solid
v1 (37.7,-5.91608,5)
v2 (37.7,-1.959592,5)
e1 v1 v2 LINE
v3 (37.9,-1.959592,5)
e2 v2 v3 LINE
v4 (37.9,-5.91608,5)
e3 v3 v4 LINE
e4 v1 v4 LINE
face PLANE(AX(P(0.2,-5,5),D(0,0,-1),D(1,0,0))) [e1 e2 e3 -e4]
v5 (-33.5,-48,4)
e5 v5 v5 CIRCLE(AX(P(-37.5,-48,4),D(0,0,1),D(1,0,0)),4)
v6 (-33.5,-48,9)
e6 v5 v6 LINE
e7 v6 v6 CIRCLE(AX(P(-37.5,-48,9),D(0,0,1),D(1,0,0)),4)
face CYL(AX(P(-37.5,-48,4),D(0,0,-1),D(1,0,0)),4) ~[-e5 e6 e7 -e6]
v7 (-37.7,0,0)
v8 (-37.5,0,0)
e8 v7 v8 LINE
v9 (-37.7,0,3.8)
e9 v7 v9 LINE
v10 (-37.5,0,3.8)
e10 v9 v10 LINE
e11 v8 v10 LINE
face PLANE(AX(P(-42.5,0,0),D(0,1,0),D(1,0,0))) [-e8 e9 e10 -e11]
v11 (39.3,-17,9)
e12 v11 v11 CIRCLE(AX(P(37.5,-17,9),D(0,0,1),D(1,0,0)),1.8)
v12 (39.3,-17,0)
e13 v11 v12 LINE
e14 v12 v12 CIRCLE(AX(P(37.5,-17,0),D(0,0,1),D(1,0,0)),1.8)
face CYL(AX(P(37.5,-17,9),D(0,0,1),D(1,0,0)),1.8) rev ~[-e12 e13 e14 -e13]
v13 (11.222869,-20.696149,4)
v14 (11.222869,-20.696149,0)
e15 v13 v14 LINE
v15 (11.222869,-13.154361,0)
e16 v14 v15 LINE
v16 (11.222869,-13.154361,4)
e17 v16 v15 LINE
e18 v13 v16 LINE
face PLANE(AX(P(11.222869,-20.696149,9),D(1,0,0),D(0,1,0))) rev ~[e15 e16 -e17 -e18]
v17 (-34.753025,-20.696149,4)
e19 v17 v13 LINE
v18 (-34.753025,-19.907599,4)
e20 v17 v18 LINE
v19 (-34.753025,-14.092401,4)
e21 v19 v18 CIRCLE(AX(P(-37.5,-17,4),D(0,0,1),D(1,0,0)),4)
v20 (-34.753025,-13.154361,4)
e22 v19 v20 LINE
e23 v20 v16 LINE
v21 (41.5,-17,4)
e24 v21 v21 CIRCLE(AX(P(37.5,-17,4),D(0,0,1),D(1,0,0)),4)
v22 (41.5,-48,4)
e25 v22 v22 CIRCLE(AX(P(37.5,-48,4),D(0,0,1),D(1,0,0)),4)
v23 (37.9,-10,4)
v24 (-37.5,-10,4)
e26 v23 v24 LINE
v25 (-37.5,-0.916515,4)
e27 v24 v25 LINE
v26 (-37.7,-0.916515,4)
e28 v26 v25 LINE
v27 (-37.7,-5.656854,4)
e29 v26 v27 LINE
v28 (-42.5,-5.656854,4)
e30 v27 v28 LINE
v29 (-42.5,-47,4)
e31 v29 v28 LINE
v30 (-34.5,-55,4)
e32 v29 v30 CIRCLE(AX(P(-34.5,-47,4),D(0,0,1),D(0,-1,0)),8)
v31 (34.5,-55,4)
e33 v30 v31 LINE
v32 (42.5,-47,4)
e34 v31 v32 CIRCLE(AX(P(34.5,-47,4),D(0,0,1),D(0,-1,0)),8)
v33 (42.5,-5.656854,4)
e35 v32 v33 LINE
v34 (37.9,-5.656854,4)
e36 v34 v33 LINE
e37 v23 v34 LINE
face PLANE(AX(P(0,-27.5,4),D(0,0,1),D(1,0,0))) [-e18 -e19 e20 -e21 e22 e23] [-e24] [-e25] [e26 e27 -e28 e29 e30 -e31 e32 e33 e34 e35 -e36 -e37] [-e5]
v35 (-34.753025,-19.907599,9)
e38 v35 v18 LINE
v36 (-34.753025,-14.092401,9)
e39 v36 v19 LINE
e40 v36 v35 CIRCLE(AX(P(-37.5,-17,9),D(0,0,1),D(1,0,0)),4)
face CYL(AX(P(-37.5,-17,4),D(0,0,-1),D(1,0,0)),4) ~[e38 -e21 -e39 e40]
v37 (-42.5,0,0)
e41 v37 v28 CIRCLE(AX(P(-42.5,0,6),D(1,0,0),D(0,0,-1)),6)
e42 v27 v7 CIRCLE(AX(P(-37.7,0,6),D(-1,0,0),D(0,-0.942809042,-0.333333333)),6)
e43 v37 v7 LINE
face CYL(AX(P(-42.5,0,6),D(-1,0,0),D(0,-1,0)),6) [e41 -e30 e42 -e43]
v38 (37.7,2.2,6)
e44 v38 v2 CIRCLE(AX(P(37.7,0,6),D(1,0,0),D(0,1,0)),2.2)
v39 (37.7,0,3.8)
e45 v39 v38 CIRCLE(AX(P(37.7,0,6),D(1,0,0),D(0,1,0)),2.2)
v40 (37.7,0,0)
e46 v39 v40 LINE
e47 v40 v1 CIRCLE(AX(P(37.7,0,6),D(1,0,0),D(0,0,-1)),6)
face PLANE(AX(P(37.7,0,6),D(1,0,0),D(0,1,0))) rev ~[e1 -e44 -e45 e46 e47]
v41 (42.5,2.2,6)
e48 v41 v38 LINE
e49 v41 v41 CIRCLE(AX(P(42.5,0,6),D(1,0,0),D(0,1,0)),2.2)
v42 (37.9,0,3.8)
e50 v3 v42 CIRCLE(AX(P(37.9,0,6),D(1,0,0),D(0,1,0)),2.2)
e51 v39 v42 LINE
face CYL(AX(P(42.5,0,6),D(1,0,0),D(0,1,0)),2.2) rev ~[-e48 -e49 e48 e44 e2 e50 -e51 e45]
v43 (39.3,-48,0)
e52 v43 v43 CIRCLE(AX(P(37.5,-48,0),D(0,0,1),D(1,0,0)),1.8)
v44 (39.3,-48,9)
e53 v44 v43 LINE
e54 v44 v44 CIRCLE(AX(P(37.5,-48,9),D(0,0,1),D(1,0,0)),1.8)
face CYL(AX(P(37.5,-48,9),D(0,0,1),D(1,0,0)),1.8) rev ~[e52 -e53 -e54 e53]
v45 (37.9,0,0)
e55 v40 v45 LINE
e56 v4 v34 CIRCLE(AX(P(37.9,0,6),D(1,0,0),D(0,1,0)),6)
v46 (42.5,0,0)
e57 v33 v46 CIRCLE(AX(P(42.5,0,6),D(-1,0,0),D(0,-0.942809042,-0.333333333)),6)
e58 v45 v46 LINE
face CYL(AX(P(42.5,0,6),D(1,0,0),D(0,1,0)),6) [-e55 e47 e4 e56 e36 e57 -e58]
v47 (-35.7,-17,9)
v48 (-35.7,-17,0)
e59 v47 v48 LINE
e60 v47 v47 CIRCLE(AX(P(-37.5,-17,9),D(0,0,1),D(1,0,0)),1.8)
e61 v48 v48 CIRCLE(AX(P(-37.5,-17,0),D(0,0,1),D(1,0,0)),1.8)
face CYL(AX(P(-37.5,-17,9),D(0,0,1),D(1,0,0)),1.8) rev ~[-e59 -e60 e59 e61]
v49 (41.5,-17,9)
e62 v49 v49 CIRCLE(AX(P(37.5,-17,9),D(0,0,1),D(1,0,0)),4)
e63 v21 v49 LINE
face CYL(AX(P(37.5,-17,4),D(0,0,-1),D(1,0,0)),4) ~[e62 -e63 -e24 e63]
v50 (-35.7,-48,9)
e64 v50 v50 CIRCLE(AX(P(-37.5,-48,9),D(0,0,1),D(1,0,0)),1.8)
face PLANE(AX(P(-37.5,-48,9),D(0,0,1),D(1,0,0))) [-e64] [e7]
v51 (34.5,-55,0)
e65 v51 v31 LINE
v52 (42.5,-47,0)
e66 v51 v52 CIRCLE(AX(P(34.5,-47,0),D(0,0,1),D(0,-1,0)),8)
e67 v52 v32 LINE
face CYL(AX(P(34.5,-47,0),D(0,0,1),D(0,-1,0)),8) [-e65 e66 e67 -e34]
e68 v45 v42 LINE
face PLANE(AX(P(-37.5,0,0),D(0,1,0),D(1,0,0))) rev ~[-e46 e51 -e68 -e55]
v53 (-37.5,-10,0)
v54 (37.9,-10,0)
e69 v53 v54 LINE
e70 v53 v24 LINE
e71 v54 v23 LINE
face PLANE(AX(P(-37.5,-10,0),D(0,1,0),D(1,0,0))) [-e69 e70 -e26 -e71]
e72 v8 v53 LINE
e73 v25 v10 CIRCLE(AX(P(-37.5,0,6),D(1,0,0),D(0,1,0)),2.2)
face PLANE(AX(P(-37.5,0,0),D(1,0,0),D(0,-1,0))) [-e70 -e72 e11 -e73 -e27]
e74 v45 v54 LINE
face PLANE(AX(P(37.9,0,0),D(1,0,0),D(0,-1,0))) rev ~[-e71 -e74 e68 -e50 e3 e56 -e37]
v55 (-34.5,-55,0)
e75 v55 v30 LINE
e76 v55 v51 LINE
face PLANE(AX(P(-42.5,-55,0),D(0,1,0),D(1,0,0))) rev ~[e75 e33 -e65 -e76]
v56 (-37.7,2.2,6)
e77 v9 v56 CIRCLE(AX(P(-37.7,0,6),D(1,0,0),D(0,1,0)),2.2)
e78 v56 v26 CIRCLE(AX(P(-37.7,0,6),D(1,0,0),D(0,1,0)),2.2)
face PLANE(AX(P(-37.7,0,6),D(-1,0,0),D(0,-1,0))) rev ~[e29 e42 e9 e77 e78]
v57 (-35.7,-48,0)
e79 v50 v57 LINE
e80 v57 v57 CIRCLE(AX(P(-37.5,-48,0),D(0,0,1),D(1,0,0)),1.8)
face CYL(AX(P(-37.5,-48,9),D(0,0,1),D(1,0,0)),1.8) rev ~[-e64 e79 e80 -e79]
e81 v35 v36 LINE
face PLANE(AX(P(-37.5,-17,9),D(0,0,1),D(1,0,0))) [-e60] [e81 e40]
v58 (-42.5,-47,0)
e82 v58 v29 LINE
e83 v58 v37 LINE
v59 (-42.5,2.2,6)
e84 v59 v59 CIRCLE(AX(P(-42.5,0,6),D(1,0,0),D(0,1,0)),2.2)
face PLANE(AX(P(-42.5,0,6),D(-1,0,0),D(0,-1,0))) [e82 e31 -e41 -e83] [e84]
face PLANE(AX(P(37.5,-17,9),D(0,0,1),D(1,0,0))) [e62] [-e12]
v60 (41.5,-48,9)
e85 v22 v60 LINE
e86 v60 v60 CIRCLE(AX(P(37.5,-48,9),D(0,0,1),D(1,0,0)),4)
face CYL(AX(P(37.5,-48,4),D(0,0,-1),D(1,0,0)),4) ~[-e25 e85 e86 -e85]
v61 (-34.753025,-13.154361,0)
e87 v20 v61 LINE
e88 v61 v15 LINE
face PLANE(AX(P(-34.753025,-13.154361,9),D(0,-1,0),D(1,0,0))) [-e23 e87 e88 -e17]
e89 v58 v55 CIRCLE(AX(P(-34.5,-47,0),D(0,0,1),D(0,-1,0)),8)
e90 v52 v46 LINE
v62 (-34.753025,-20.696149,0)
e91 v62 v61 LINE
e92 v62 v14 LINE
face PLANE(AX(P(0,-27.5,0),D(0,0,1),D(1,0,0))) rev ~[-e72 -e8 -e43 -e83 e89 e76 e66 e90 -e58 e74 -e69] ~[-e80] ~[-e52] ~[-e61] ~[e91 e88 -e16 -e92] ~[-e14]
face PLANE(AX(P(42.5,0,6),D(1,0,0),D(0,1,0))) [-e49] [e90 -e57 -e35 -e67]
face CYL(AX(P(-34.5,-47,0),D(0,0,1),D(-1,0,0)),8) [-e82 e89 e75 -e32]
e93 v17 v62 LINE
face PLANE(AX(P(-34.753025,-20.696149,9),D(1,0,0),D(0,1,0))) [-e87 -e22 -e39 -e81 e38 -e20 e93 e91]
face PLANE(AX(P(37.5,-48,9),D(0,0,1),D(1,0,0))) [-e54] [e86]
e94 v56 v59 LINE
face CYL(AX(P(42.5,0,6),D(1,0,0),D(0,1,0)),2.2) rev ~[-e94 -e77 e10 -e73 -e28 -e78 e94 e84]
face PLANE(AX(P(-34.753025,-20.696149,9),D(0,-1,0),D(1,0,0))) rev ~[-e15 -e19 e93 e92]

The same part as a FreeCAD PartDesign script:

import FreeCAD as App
import Part
import Sketcher
Q = App.Units.Quantity


def edges_at(feature, points):
    """Names of the edges that pass closest to the given points."""
    edges = feature.Shape.Edges
    near = lambda p: min(range(len(edges)), key=lambda i: edges[i].distToShape(Part.Vertex(*p))[0])
    return sorted({f"Edge{near(p) + 1}" for p in points})


def add_polygon(sketch, points):
    """Adds a closed chain of lines whose ends are joined by coincident constraints."""
    first, n = sketch.GeometryCount, len(points)
    for a, b in zip(points, points[1:] + points[:1]):
        sketch.addGeometry(Part.LineSegment(App.Vector(*a, 0), App.Vector(*b, 0)), False)
    for i in range(n):
        sketch.addConstraint(Sketcher.Constraint("Coincident", first + i, 2, first + (i + 1) % n, 1))

doc = App.newDocument("Part")
body = doc.addObject("PartDesign::Body", "Body")

sketch1 = body.newObject("Sketcher::SketchObject", "Sketch")
sketch1.AttachmentSupport = (doc.getObject("XY_Plane"), [""])
sketch1.MapMode = "FlatFace"
add_polygon(sketch1, [(-42, 0), (-42, -55), (42, -55), (42, 0)])
sketch1.addConstraint([
    Sketcher.Constraint("Vertical", 0),
    Sketcher.Constraint("Horizontal", 1),
    Sketcher.Constraint("Vertical", 2),
    Sketcher.Constraint("Horizontal", 3),
    Sketcher.Constraint("Symmetric", 2, 2, 3, 2, -1, 1),
    Sketcher.Constraint("DistanceX", 1, 1, 1, 2, Q("85 mm")),
    Sketcher.Constraint("DistanceY", 0, 2, 0, 1, Q("55 mm")),
])
pad1 = body.newObject("PartDesign::Pad", "Pad")
pad1.Profile = sketch1
pad1.Length = 4

sketch2 = body.newObject("Sketcher::SketchObject", "Sketch001")
sketch2.AttachmentSupport = (doc.getObject("YZ_Plane"), [""])
sketch2.MapMode = "FlatFace"
sketch2.AttachmentOffset = App.Placement(App.Vector(0, 0, 42.5), App.Rotation())
sketch2.addGeometry(Part.Circle(App.Vector(0, 6, 0), App.Vector(0, 0, 1), 6), False)
sketch2.addConstraint([
    Sketcher.Constraint("PointOnObject", 0, 3, -2),
    Sketcher.Constraint("Diameter", 0, Q("12 mm")),
    Sketcher.Constraint("DistanceY", -1, 1, 0, 3, Q("6 mm")),
])
pad2 = body.newObject("PartDesign::Pad", "Pad001")
pad2.Profile = sketch2
pad2.Length = 4.8
pad2.Reversed = True

sketch3 = body.newObject("Sketcher::SketchObject", "Sketch002")
sketch3.AttachmentSupport = (doc.getObject("YZ_Plane"), [""])
sketch3.MapMode = "FlatFace"
sketch3.AttachmentOffset = App.Placement(App.Vector(0, 0, -42.5), App.Rotation())
sketch3.addGeometry(Part.Circle(App.Vector(0, 6, 0), App.Vector(0, 0, 1), 6), False)
sketch3.addConstraint([
    Sketcher.Constraint("PointOnObject", 0, 3, -2),
    Sketcher.Constraint("Diameter", 0, Q("12 mm")),
    Sketcher.Constraint("DistanceY", -1, 1, 0, 3, Q("6 mm")),
])
pad3 = body.newObject("PartDesign::Pad", "Pad002")
pad3.Profile = sketch3
pad3.Length = 4.8

sketch4 = body.newObject("Sketcher::SketchObject", "Sketch003")
sketch4.AttachmentSupport = (doc.getObject("XY_Plane"), [""])
sketch4.MapMode = "FlatFace"
add_polygon(sketch4, [(-38, -10), (-38, 0), (38, 0), (38, -10)])
sketch4.addConstraint([
    Sketcher.Constraint("Vertical", 0),
    Sketcher.Constraint("Horizontal", 1),
    Sketcher.Constraint("Vertical", 2),
    Sketcher.Constraint("Horizontal", 3),
    Sketcher.Constraint("PointOnObject", 0, 2, -1),
    Sketcher.Constraint("DistanceY", 0, 1, 0, 2, Q("10 mm")),
    Sketcher.Constraint("DistanceX", 1, 1, 1, 2, Q("75.4 mm")),
    Sketcher.Constraint("DistanceX", 0, 2, -1, 1, Q("37.5 mm")),
])
pocket1 = body.newObject("PartDesign::Pocket", "Pocket")
pocket1.Profile = sketch4
pocket1.Length = 5
pocket1.Reversed = True

sketch5 = body.newObject("Sketcher::SketchObject", "Sketch004")
sketch5.AttachmentSupport = (doc.getObject("YZ_Plane"), [""])
sketch5.MapMode = "FlatFace"
sketch5.AttachmentOffset = App.Placement(App.Vector(0, 0, 42.5), App.Rotation())
sketch5.addGeometry(Part.Circle(App.Vector(0, 6, 0), App.Vector(0, 0, 1), 2.2), False)
sketch5.addConstraint([
    Sketcher.Constraint("PointOnObject", 0, 3, -2),
    Sketcher.Constraint("Diameter", 0, Q("4.4 mm")),
    Sketcher.Constraint("DistanceY", -1, 1, 0, 3, Q("6 mm")),
])
pocket2 = body.newObject("PartDesign::Pocket", "Pocket001")
pocket2.Profile = sketch5
pocket2.Length = 85

sketch6 = body.newObject("Sketcher::SketchObject", "Sketch005")
sketch6.AttachmentSupport = (doc.getObject("XY_Plane"), [""])
sketch6.MapMode = "FlatFace"
sketch6.AttachmentOffset = App.Placement(App.Vector(0, 0, 4), App.Rotation())
sketch6.addGeometry([
    Part.Circle(App.Vector(-37.5, -17, 0), App.Vector(0, 0, 1), 4),
    Part.Circle(App.Vector(37.5, -17, 0), App.Vector(0, 0, 1), 4),
    Part.Circle(App.Vector(37.5, -48, 0), App.Vector(0, 0, 1), 4),
    Part.Circle(App.Vector(-37.5, -48, 0), App.Vector(0, 0, 1), 4),
], False)
sketch6.addConstraint([
    Sketcher.Constraint("Equal", 0, 1),
    Sketcher.Constraint("Equal", 1, 2),
    Sketcher.Constraint("Equal", 2, 3),
    Sketcher.Constraint("Symmetric", 0, 3, 1, 3, -2),
    Sketcher.Constraint("Symmetric", 2, 3, 3, 3, -2),
    Sketcher.Constraint("Vertical", 1, 3, 2, 3),
    Sketcher.Constraint("Diameter", 0, Q("8 mm")),
    Sketcher.Constraint("DistanceY", 0, 3, -1, 1, Q("17 mm")),
    Sketcher.Constraint("DistanceY", 2, 3, -1, 1, Q("48 mm")),
    Sketcher.Constraint("DistanceX", 0, 3, 1, 3, Q("75 mm")),
])
pad4 = body.newObject("PartDesign::Pad", "Pad003")
pad4.Profile = sketch6
pad4.Length = 5

sketch7 = body.newObject("Sketcher::SketchObject", "Sketch006")
sketch7.AttachmentSupport = (doc.getObject("XY_Plane"), [""])
sketch7.MapMode = "FlatFace"
sketch7.AttachmentOffset = App.Placement(App.Vector(0, 0, 9), App.Rotation())
sketch7.addGeometry([
    Part.Circle(App.Vector(-37.5, -17, 0), App.Vector(0, 0, 1), 1.8),
    Part.Circle(App.Vector(-37.5, -48, 0), App.Vector(0, 0, 1), 1.8),
    Part.Circle(App.Vector(37.5, -48, 0), App.Vector(0, 0, 1), 1.8),
    Part.Circle(App.Vector(37.5, -17, 0), App.Vector(0, 0, 1), 1.8),
], False)
sketch7.addConstraint([
    Sketcher.Constraint("Equal", 0, 1),
    Sketcher.Constraint("Equal", 1, 2),
    Sketcher.Constraint("Equal", 2, 3),
    Sketcher.Constraint("Symmetric", 1, 3, 2, 3, -2),
    Sketcher.Constraint("Symmetric", 0, 3, 3, 3, -2),
    Sketcher.Constraint("Vertical", 0, 3, 1, 3),
    Sketcher.Constraint("Diameter", 0, Q("3.6 mm")),
    Sketcher.Constraint("DistanceY", 0, 3, -1, 1, Q("17 mm")),
    Sketcher.Constraint("DistanceY", 1, 3, -1, 1, Q("48 mm")),
    Sketcher.Constraint("DistanceX", 1, 3, 2, 3, Q("75 mm")),
])
pocket3 = body.newObject("PartDesign::Pocket", "Pocket002")
pocket3.Profile = sketch7
pocket3.Length = 9

sketch8 = body.newObject("Sketcher::SketchObject", "Sketch007")
sketch8.AttachmentSupport = (doc.getObject("XY_Plane"), [""])
sketch8.MapMode = "FlatFace"
sketch8.AttachmentOffset = App.Placement(App.Vector(0, 0, 9), App.Rotation())
add_polygon(sketch8, [(-35, -13), (-35, -21), (11, -21), (11, -13)])
sketch8.addConstraint([
    Sketcher.Constraint("Vertical", 0),
    Sketcher.Constraint("Horizontal", 1),
    Sketcher.Constraint("Vertical", 2),
    Sketcher.Constraint("Horizontal", 3),
    Sketcher.Constraint("DistanceX", 1, 1, 1, 2, Q("45.975895 mm")),
    Sketcher.Constraint("DistanceY", 0, 2, 0, 1, Q("7.541788 mm")),
    Sketcher.Constraint("DistanceY", 0, 2, -1, 1, Q("20.696149 mm")),
    Sketcher.Constraint("DistanceX", -1, 1, 1, 2, Q("11.222869 mm")),
])
pocket4 = body.newObject("PartDesign::Pocket", "Pocket003")
pocket4.Profile = sketch8
pocket4.Length = 9
doc.recompute()

fillet = body.newObject("PartDesign::Fillet", "Fillet")
fillet.Base = (pocket4, edges_at(pocket4, [(-42.5, -55, 2)]))
fillet.Radius = 8
doc.recompute()

fillet2 = body.newObject("PartDesign::Fillet", "Fillet001")
fillet2.Base = (fillet, edges_at(fillet, [(42.5, -55, 2)]))
fillet2.Radius = 8

doc.recompute()
